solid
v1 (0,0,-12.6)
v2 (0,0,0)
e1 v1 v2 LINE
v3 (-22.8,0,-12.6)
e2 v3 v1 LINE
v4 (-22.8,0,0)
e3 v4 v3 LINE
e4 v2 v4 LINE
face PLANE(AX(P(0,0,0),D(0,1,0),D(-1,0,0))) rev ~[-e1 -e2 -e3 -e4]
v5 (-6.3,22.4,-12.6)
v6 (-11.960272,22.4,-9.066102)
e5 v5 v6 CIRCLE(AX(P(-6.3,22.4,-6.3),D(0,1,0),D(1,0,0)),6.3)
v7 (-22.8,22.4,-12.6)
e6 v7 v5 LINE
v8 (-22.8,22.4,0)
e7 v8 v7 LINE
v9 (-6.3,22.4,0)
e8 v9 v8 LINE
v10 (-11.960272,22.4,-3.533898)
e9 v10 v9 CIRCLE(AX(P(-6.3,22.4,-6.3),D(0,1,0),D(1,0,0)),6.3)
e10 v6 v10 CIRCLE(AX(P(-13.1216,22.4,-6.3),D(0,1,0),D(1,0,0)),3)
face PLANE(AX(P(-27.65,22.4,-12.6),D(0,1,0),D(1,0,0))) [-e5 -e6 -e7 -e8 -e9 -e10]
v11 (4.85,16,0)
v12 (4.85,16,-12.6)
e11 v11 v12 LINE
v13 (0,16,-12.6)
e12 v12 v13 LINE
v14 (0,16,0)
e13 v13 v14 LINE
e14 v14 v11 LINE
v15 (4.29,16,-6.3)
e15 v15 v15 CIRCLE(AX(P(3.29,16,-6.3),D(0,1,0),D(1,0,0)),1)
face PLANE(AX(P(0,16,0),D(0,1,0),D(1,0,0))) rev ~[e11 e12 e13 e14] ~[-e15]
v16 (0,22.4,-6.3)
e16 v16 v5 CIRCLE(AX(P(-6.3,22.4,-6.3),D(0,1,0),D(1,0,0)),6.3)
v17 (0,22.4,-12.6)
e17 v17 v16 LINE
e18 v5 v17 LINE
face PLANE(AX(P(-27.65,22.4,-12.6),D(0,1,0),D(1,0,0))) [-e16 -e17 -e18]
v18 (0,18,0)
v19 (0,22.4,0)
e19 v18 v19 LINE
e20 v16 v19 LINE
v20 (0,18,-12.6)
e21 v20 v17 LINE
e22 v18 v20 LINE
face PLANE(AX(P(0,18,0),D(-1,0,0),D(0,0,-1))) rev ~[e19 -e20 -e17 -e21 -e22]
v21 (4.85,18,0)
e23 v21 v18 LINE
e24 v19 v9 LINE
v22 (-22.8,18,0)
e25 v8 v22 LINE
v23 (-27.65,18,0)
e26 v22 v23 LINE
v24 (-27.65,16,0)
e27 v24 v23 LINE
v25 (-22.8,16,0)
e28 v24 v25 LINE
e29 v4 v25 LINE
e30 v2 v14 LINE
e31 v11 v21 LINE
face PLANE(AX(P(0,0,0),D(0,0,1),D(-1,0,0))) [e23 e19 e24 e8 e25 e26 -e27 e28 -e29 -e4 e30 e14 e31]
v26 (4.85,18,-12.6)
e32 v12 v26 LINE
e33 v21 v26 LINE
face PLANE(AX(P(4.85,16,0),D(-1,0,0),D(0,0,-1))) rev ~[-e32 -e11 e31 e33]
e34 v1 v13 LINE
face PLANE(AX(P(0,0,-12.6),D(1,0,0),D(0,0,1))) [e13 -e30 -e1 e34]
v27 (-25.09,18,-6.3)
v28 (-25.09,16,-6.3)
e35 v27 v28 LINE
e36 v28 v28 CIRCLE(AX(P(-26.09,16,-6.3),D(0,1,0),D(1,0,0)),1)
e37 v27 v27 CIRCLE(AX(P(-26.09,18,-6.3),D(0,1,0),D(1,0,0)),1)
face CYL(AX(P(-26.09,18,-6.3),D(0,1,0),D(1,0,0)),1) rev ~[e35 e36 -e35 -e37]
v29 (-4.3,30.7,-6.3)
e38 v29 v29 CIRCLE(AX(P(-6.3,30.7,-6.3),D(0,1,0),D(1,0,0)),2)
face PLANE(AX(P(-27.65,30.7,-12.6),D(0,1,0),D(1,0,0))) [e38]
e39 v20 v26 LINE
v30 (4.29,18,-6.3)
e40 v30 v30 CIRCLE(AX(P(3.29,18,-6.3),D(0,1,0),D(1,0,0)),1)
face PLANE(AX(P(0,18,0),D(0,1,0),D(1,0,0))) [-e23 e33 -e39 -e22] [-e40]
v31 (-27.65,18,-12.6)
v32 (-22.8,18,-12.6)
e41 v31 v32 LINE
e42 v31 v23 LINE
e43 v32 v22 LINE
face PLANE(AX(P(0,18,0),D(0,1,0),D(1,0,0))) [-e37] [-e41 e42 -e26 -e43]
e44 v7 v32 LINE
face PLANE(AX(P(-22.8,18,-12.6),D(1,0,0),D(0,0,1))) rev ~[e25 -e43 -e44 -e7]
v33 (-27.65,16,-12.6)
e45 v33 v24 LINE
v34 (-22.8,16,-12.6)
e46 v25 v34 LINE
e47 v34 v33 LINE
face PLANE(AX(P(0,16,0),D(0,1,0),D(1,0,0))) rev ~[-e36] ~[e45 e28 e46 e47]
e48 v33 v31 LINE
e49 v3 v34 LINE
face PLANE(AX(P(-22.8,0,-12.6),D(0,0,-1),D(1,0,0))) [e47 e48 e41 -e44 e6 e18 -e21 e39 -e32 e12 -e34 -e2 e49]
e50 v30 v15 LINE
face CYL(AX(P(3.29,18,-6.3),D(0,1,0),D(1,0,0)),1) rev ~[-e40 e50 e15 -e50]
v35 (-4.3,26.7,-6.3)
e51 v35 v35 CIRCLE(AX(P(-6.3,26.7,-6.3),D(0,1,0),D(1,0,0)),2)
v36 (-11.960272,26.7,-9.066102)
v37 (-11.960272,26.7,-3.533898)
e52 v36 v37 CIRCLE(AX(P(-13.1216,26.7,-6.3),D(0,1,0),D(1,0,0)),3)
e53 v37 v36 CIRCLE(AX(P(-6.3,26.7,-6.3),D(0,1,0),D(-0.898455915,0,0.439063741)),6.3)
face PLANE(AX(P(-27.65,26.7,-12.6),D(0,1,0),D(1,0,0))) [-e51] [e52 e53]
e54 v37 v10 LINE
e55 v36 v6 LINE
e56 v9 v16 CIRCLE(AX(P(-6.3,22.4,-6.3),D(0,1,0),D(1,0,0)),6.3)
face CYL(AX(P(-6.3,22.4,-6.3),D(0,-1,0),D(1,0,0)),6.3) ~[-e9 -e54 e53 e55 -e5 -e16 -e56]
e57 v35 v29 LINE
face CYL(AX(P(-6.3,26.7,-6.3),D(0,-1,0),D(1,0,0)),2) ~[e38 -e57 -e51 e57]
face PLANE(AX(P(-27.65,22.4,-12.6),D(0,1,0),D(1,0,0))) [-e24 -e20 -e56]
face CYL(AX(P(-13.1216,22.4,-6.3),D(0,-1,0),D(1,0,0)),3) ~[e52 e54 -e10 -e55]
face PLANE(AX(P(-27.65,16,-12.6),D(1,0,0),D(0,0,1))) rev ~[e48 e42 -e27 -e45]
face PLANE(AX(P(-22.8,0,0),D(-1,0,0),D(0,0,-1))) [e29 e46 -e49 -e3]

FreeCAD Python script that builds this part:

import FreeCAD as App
import Part
import Sketcher


def add_polygon(sketch, points):
    """Adds a closed chain of lines whose ends are joined by coincident constraints."""
    first, n = sketch.GeometryCount, len(points)
    for a, b in zip(points, points[1:] + points[:1]):
        sketch.addGeometry(Part.LineSegment(App.Vector(*a, 0), App.Vector(*b, 0)), False)
    for i in range(n):
        sketch.addConstraint(Sketcher.Constraint("Coincident", first + i, 2, first + (i + 1) % n, 1))

doc = App.newDocument("Part")
body = doc.addObject("PartDesign::Body", "Body")

sketch1 = doc.addObject("Sketcher::SketchObject", "Sketch")
body.addObject(sketch1)
sketch1.AttachmentSupport = (doc.XZ_Plane, [""])
sketch1.MapMode = "FlatFace"
add_polygon(sketch1, [(-23, 0), (0, 0), (0, -13), (-23, -13)])
sketch1.addConstraint(Sketcher.Constraint("Horizontal", 0))
sketch1.addConstraint(Sketcher.Constraint("Vertical", 1))
sketch1.addConstraint(Sketcher.Constraint("Horizontal", 2))
sketch1.addConstraint(Sketcher.Constraint("Vertical", 3))
sketch1.addConstraint(Sketcher.Constraint("Coincident", 0, 2, -1, 1))
sketch1.addConstraint(Sketcher.Constraint("DistanceX", 0, 1, 0, 2, 22.8))
sketch1.addConstraint(Sketcher.Constraint("DistanceY", 1, 2, 1, 1, 12.6))
pad1 = doc.addObject("PartDesign::Pad", "Pad")
body.addObject(pad1)
pad1.Profile = sketch1
pad1.Length = 16
pad1.Reversed = True

sketch2 = doc.addObject("Sketcher::SketchObject", "Sketch001")
body.addObject(sketch2)
sketch2.AttachmentSupport = (doc.XZ_Plane, [""])
sketch2.MapMode = "FlatFace"
sketch2.AttachmentOffset = App.Placement(App.Vector(0, 0, -16), App.Rotation())
add_polygon(sketch2, [(-28, 0), (5, 0), (5, -13), (-28, -13)])
sketch2.addConstraint(Sketcher.Constraint("Horizontal", 0))
sketch2.addConstraint(Sketcher.Constraint("Vertical", 1))
sketch2.addConstraint(Sketcher.Constraint("Horizontal", 2))
sketch2.addConstraint(Sketcher.Constraint("Vertical", 3))
sketch2.addConstraint(Sketcher.Constraint("PointOnObject", 0, 2, -1))
sketch2.addConstraint(Sketcher.Constraint("DistanceX", -1, 1, 0, 2, 4.85))
sketch2.addConstraint(Sketcher.Constraint("DistanceX", 0, 1, 0, 2, 32.5))
sketch2.addConstraint(Sketcher.Constraint("DistanceY", 1, 2, 1, 1, 12.6))
pad2 = doc.addObject("PartDesign::Pad", "Pad001")
body.addObject(pad2)
pad2.Profile = sketch2
pad2.Length = 2
pad2.Reversed = True

sketch3 = doc.addObject("Sketcher::SketchObject", "Sketch002")
body.addObject(sketch3)
sketch3.AttachmentSupport = (doc.XZ_Plane, [""])
sketch3.MapMode = "FlatFace"
sketch3.AttachmentOffset = App.Placement(App.Vector(0, 0, -18), App.Rotation())
add_polygon(sketch3, [(-23, 0), (0, 0), (0, -13), (-23, -13)])
sketch3.addConstraint(Sketcher.Constraint("Horizontal", 0))
sketch3.addConstraint(Sketcher.Constraint("Vertical", 1))
sketch3.addConstraint(Sketcher.Constraint("Horizontal", 2))
sketch3.addConstraint(Sketcher.Constraint("Vertical", 3))
sketch3.addConstraint(Sketcher.Constraint("Coincident", 0, 2, -1, 1))
sketch3.addConstraint(Sketcher.Constraint("DistanceX", 0, 1, 0, 2, 22.8))
sketch3.addConstraint(Sketcher.Constraint("DistanceY", 1, 2, 1, 1, 12.6))
pad3 = doc.addObject("PartDesign::Pad", "Pad002")
body.addObject(pad3)
pad3.Profile = sketch3
pad3.Length = 1
pad3.Reversed = True

sketch4 = doc.addObject("Sketcher::SketchObject", "Sketch003")
body.addObject(sketch4)
sketch4.AttachmentSupport = (doc.XZ_Plane, [""])
sketch4.MapMode = "FlatFace"
sketch4.AttachmentOffset = App.Placement(App.Vector(0, 0, -18), App.Rotation())
sketch4.addGeometry(Part.Circle(App.Vector(-26.1, -6.3, 0), App.Vector(0, 0, 1), 1), False)
sketch4.addGeometry(Part.Circle(App.Vector(3.3, -6.3, 0), App.Vector(0, 0, 1), 1), False)
sketch4.addConstraint(Sketcher.Constraint("Equal", 0, 1))
sketch4.addConstraint(Sketcher.Constraint("Horizontal", 0, 3, 1, 3))
sketch4.addConstraint(Sketcher.Constraint("Diameter", 0, 2.0))
sketch4.addConstraint(Sketcher.Constraint("DistanceY", 0, 3, -1, 1, 6.3))
sketch4.addConstraint(Sketcher.Constraint("DistanceX", 0, 3, -1, 1, 26.09))
sketch4.addConstraint(Sketcher.Constraint("DistanceX", -1, 1, 1, 3, 3.29))
pocket1 = doc.addObject("PartDesign::Pocket", "Pocket")
body.addObject(pocket1)
pocket1.Profile = sketch4
pocket1.Type = "ThroughAll"
pocket1.Reversed = True

sketch5 = doc.addObject("Sketcher::SketchObject", "Sketch004")
body.addObject(sketch5)
sketch5.AttachmentSupport = (doc.XZ_Plane, [""])
sketch5.MapMode = "FlatFace"
sketch5.AttachmentOffset = App.Placement(App.Vector(0, 0, -18), App.Rotation())
add_polygon(sketch5, [(0, -13), (-23, -13), (-23, 0), (0, 0)])
sketch5.addConstraint(Sketcher.Constraint("Horizontal", 0))
sketch5.addConstraint(Sketcher.Constraint("Vertical", 1))
sketch5.addConstraint(Sketcher.Constraint("Horizontal", 2))
sketch5.addConstraint(Sketcher.Constraint("Vertical", 3))
sketch5.addConstraint(Sketcher.Constraint("Coincident", 2, 2, -1, 1))
sketch5.addConstraint(Sketcher.Constraint("DistanceX", 0, 2, 0, 1, 22.8))
sketch5.addConstraint(Sketcher.Constraint("DistanceY", 1, 1, 1, 2, 12.6))
pad4 = doc.addObject("PartDesign::Pad", "Pad003")
body.addObject(pad4)
pad4.Profile = sketch5
pad4.Length = 4.4
pad4.Reversed = True

sketch6 = doc.addObject("Sketcher::SketchObject", "Sketch005")
body.addObject(sketch6)
sketch6.AttachmentSupport = (doc.XZ_Plane, [""])
sketch6.MapMode = "FlatFace"
sketch6.AttachmentOffset = App.Placement(App.Vector(0, 0, -22.4), App.Rotation())
sketch6.addGeometry(Part.Circle(App.Vector(-6, -6, 0), App.Vector(0, 0, 1), 6), False)
sketch6.addConstraint(Sketcher.Constraint("Diameter", 0, 12.6))
sketch6.addConstraint(Sketcher.Constraint("DistanceX", 0, 3, -1, 1, 6.3))
sketch6.addConstraint(Sketcher.Constraint("DistanceY", 0, 3, -1, 1, 6.3))
pad5 = doc.addObject("PartDesign::Pad", "Pad004")
body.addObject(pad5)
pad5.Profile = sketch6
pad5.Length = 4.3
pad5.Reversed = True

sketch7 = doc.addObject("Sketcher::SketchObject", "Sketch006")
body.addObject(sketch7)
sketch7.AttachmentSupport = (doc.XZ_Plane, [""])
sketch7.MapMode = "FlatFace"
sketch7.AttachmentOffset = App.Placement(App.Vector(0, 0, -22.4), App.Rotation())
sketch7.addGeometry(Part.Circle(App.Vector(-13.1, -6.3, 0), App.Vector(0, 0, 1), 3), False)
sketch7.addConstraint(Sketcher.Constraint("Diameter", 0, 6.0))
sketch7.addConstraint(Sketcher.Constraint("DistanceY", 0, 3, -1, 1, 6.3))
sketch7.addConstraint(Sketcher.Constraint("DistanceX", 0, 3, -1, 1, 13.1216))
pad6 = doc.addObject("PartDesign::Pad", "Pad005")
body.addObject(pad6)
pad6.Profile = sketch7
pad6.Length = 4.3
pad6.Reversed = True

sketch8 = doc.addObject("Sketcher::SketchObject", "Sketch007")
body.addObject(sketch8)
sketch8.AttachmentSupport = (doc.XZ_Plane, [""])
sketch8.MapMode = "FlatFace"
sketch8.AttachmentOffset = App.Placement(App.Vector(0, 0, -26.7), App.Rotation())
sketch8.addGeometry(Part.Circle(App.Vector(-6.3, -6.3, 0), App.Vector(0, 0, 1), 2), False)
sketch8.addConstraint(Sketcher.Constraint("Diameter", 0, 4.0))
sketch8.addConstraint(Sketcher.Constraint("DistanceX", 0, 3, -1, 1, 6.3))
sketch8.addConstraint(Sketcher.Constraint("DistanceY", 0, 3, -1, 1, 6.3))
pad7 = doc.addObject("PartDesign::Pad", "Pad006")
body.addObject(pad7)
pad7.Profile = sketch8
pad7.Length = 4
pad7.Reversed = True

doc.recompute()
